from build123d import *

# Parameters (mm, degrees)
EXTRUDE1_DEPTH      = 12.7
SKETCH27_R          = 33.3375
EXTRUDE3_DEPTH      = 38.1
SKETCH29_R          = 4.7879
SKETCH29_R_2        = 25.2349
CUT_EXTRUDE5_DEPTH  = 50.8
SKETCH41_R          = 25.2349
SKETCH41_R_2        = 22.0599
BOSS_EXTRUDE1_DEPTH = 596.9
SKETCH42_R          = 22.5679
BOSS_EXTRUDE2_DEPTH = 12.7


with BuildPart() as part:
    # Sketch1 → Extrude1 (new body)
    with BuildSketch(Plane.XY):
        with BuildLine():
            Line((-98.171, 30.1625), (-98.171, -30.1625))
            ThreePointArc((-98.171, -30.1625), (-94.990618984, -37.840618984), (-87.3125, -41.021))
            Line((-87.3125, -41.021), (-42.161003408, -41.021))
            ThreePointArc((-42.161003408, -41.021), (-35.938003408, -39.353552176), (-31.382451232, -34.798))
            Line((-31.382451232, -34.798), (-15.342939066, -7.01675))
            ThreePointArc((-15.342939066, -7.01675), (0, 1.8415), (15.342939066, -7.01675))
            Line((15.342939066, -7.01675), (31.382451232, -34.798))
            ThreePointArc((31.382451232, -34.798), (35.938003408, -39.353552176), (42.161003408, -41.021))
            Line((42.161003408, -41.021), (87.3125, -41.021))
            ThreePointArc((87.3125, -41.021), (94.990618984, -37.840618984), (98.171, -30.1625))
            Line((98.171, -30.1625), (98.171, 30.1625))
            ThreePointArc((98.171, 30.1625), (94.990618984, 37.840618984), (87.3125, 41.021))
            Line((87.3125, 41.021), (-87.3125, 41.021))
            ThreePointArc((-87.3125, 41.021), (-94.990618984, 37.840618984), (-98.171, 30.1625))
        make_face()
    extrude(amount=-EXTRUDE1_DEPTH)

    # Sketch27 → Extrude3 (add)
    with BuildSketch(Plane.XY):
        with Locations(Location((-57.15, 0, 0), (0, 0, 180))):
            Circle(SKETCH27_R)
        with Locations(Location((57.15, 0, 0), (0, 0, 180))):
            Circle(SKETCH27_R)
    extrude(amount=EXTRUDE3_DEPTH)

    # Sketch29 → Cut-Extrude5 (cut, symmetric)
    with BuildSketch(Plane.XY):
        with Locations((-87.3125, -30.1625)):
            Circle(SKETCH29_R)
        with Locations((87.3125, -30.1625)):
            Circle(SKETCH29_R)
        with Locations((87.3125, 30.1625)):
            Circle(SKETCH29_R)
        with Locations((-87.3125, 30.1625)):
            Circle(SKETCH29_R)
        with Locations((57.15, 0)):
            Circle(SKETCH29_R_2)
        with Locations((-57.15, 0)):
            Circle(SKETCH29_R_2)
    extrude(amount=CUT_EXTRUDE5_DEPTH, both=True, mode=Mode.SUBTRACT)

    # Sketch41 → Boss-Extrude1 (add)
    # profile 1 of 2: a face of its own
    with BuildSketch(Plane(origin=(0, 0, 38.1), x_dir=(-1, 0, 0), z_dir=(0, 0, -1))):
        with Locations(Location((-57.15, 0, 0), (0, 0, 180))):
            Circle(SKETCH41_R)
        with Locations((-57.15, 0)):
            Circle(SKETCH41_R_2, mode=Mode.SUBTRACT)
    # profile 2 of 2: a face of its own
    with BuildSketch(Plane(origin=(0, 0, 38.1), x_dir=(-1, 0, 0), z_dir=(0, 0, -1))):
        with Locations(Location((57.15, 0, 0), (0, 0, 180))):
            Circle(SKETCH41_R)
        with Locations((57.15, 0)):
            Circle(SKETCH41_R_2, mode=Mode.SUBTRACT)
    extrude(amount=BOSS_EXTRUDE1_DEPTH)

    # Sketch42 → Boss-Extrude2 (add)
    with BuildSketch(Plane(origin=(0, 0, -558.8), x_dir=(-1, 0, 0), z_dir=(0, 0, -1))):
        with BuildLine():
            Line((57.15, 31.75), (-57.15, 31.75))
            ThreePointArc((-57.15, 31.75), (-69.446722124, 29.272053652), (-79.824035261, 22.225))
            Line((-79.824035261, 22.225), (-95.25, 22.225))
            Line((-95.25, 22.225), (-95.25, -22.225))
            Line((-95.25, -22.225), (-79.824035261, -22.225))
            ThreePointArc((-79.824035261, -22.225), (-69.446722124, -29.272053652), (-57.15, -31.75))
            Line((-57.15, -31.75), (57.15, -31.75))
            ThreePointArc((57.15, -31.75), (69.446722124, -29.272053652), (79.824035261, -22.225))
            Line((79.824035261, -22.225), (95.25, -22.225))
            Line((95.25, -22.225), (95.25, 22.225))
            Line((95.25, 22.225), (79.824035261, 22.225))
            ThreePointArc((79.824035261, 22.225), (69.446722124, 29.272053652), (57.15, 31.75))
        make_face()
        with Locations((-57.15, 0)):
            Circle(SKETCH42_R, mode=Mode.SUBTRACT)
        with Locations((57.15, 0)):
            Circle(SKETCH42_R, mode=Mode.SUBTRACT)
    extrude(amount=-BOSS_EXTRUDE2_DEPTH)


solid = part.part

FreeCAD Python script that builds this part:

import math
import FreeCAD as App
import Part
import Sketcher
from FreeCAD import Vector
Q = App.Units.Quantity

doc = App.newDocument("Part")
body = doc.addObject("PartDesign::Body", "Body")

sketch1 = doc.addObject("Sketcher::SketchObject", "Sketch")
body.addObject(sketch1)
sketch1.AttachmentSupport = (doc.XY_Plane, [""])
sketch1.MapMode = "FlatFace"
sketch1.addGeometry([
    Part.LineSegment(Vector(-98.171, 30.1625, 0), Vector(-98.171, -30.1625, 0)),
    Part.ArcOfCircle(Part.Circle(Vector(-87.3125, -30.1625, 0), Vector(0, 0, 1), 10.8585), math.radians(180), math.radians(270)),
    Part.LineSegment(Vector(-87.3125, -41.021, 0), Vector(-42.161003, -41.021, 0)),
    Part.ArcOfCircle(Part.Circle(Vector(-42.161003, -28.575, 0), Vector(0, 0, 1), 12.446), math.radians(-90), math.radians(-30)),
    Part.LineSegment(Vector(-31.382451, -34.798, 0), Vector(-15.342939, -7.01675, 0)),
    Part.ArcOfCircle(Part.Circle(Vector(0, -15.875, 0), Vector(0, 0, 1), 17.7165), math.radians(30), math.radians(150)),
    Part.LineSegment(Vector(15.342939, -7.01675, 0), Vector(31.382451, -34.798, 0)),
    Part.ArcOfCircle(Part.Circle(Vector(42.161003, -28.575, 0), Vector(0, 0, 1), 12.446), math.radians(-150), math.radians(-90)),
    Part.LineSegment(Vector(42.161003, -41.021, 0), Vector(87.3125, -41.021, 0)),
    Part.ArcOfCircle(Part.Circle(Vector(87.3125, -30.1625, 0), Vector(0, 0, 1), 10.8585), math.radians(-90), math.radians(0)),
    Part.LineSegment(Vector(98.171, -30.1625, 0), Vector(98.171, 30.1625, 0)),
    Part.ArcOfCircle(Part.Circle(Vector(87.3125, 30.1625, 0), Vector(0, 0, 1), 10.8585), math.radians(0), math.radians(90)),
    Part.LineSegment(Vector(87.3125, 41.021, 0), Vector(-87.3125, 41.021, 0)),
    Part.ArcOfCircle(Part.Circle(Vector(-87.3125, 30.1625, 0), Vector(0, 0, 1), 10.8585), math.radians(90), math.radians(180)),
], False)
sketch1.addConstraint([
    Sketcher.Constraint("Tangent", 0, 2, 1, 1),
    Sketcher.Constraint("Tangent", 1, 2, 2, 1),
    Sketcher.Constraint("Tangent", 2, 2, 3, 1),
    Sketcher.Constraint("Tangent", 3, 2, 4, 1),
    Sketcher.Constraint("Tangent", 4, 2, 5, 2),
    Sketcher.Constraint("Tangent", 5, 1, 6, 1),
    Sketcher.Constraint("Tangent", 6, 2, 7, 1),
    Sketcher.Constraint("Tangent", 7, 2, 8, 1),
    Sketcher.Constraint("Tangent", 8, 2, 9, 1),
    Sketcher.Constraint("Tangent", 9, 2, 10, 1),
    Sketcher.Constraint("Tangent", 10, 2, 11, 1),
    Sketcher.Constraint("Tangent", 11, 2, 12, 1),
    Sketcher.Constraint("Tangent", 12, 2, 13, 1),
    Sketcher.Constraint("Tangent", 13, 2, 0, 1),
    Sketcher.Constraint("Vertical", 0),
    Sketcher.Constraint("Horizontal", 2),
    Sketcher.Constraint("Horizontal", 8),
    Sketcher.Constraint("Vertical", 10),
    Sketcher.Constraint("Horizontal", 12),
    Sketcher.Constraint("Equal", 3, 7),
    Sketcher.Constraint("Equal", 1, 9),
    Sketcher.Constraint("Equal", 9, 11),
    Sketcher.Constraint("Equal", 11, 13),
    Sketcher.Constraint("Symmetric", 1, 3, 11, 3, -1, 1),
    Sketcher.Constraint("Symmetric", 3, 3, 7, 3, -2),
    Sketcher.Constraint("PointOnObject", 5, 3, -2),
    Sketcher.Constraint("Radius", 3, Q("0.49 in")),
    Sketcher.Constraint("Angle", 4, Q("60 deg")),
    Sketcher.Constraint("Radius", 1, Q("0.4275 in")),
    Sketcher.Constraint("Radius", 5, Q("0.6975 in")),
    Sketcher.Constraint("DistanceY", 3, 3, 5, 3, Q("0.5 in")),
    Sketcher.Constraint("DistanceX", 12, 2, 12, 1, Q("6.875 in")),
    Sketcher.Constraint("DistanceY", 0, 2, 0, 1, Q("2.375 in")),
])
pad1 = doc.addObject("PartDesign::Pad", "Pad")
body.addObject(pad1)
pad1.Profile = sketch1
pad1.Length = Q("0.5 in")
pad1.Reversed = True

sketch2 = doc.addObject("Sketcher::SketchObject", "Sketch001")
body.addObject(sketch2)
sketch2.AttachmentSupport = (doc.XY_Plane, [""])
sketch2.MapMode = "FlatFace"
sketch2.addGeometry([
    Part.Circle(Vector(-57.15, 0, 0), Vector(0, 0, 1), 33.3375),
    Part.Circle(Vector(57.15, 0, 0), Vector(0, 0, 1), 33.3375),
], False)
sketch2.addConstraint([
    Sketcher.Constraint("Equal", 0, 1),
    Sketcher.Constraint("Symmetric", 0, 3, 1, 3, -1, 1),
    Sketcher.Constraint("PointOnObject", 0, 3, -1),
    Sketcher.Constraint("Diameter", 0, Q("2.625 in")),
    Sketcher.Constraint("DistanceX", 0, 3, 1, 3, Q("4.5 in")),
])
pad2 = doc.addObject("PartDesign::Pad", "Pad001")
body.addObject(pad2)
pad2.Profile = sketch2
pad2.Length = Q("1.5 in")

sketch3 = doc.addObject("Sketcher::SketchObject", "Sketch002")
body.addObject(sketch3)
sketch3.AttachmentSupport = (doc.XY_Plane, [""])
sketch3.MapMode = "FlatFace"
sketch3.addGeometry([
    Part.Circle(Vector(-87.3125, -30.1625, 0), Vector(0, 0, 1), 4.7879),
    Part.Circle(Vector(87.3125, -30.1625, 0), Vector(0, 0, 1), 4.7879),
    Part.Circle(Vector(87.3125, 30.1625, 0), Vector(0, 0, 1), 4.7879),
    Part.Circle(Vector(-87.3125, 30.1625, 0), Vector(0, 0, 1), 4.7879),
    Part.Circle(Vector(57.15, 0, 0), Vector(0, 0, 1), 25.2349),
    Part.Circle(Vector(-57.15, 0, 0), Vector(0, 0, 1), 25.2349),
], False)
sketch3.addConstraint([
    Sketcher.Constraint("Equal", 0, 1),
    Sketcher.Constraint("Equal", 1, 2),
    Sketcher.Constraint("Equal", 2, 3),
    Sketcher.Constraint("Equal", 4, 5),
    Sketcher.Constraint("Symmetric", 0, 3, 2, 3, -1, 1),
    Sketcher.Constraint("Symmetric", 1, 3, 3, 3, -1, 1),
    Sketcher.Constraint("Symmetric", 4, 3, 5, 3, -1, 1),
    Sketcher.Constraint("Symmetric", 0, 3, 1, 3, -2),
    Sketcher.Constraint("PointOnObject", 4, 3, -1),
    Sketcher.Constraint("Diameter", 0, Q("0.377 in")),
    Sketcher.Constraint("Diameter", 4, Q("1.987 in")),
    Sketcher.Constraint("DistanceX", 5, 3, 4, 3, Q("4.5 in")),
    Sketcher.Constraint("DistanceX", 0, 3, -1, 1, Q("3.4375 in")),
    Sketcher.Constraint("DistanceY", 0, 3, -1, 1, Q("1.1875 in")),
])
pocket1 = doc.addObject("PartDesign::Pocket", "Pocket")
body.addObject(pocket1)
pocket1.Profile = sketch3
pocket1.Length = Q("4 in")
pocket1.Midplane = True

sketch4 = doc.addObject("Sketcher::SketchObject", "Sketch003")
body.addObject(sketch4)
sketch4.AttachmentSupport = (doc.XY_Plane, [""])
sketch4.MapMode = "FlatFace"
sketch4.AttachmentOffset = App.Placement(Vector(0, 0, 1.5 * 25.4), App.Rotation())
sketch4.addGeometry([
    Part.Circle(Vector(57.15, 0, 0), Vector(0, 0, 1), 25.2349),
    Part.Circle(Vector(57.15, 0, 0), Vector(0, 0, 1), 22.0599),
    Part.Circle(Vector(-57.15, 0, 0), Vector(0, 0, 1), 25.2349),
    Part.Circle(Vector(-57.15, 0, 0), Vector(0, 0, 1), 22.0599),
], False)
sketch4.addConstraint([
    Sketcher.Constraint("Coincident", 1, 3, 0, 3),
    Sketcher.Constraint("Coincident", 3, 3, 2, 3),
    Sketcher.Constraint("Equal", 0, 2),
    Sketcher.Constraint("Equal", 1, 3),
    Sketcher.Constraint("Symmetric", 0, 3, 2, 3, -1, 1),
    Sketcher.Constraint("PointOnObject", 0, 3, -1),
    Sketcher.Constraint("Diameter", 0, Q("1.987 in")),
    Sketcher.Constraint("Diameter", 1, Q("1.737 in")),
    Sketcher.Constraint("DistanceX", 2, 3, 0, 3, Q("4.5 in")),
])
pad3 = doc.addObject("PartDesign::Pad", "Pad002")
body.addObject(pad3)
pad3.Profile = sketch4
pad3.Length = Q("23.5 in")
pad3.Reversed = True

sketch5 = doc.addObject("Sketcher::SketchObject", "Sketch004")
body.addObject(sketch5)
sketch5.AttachmentSupport = (doc.XY_Plane, [""])
sketch5.MapMode = "FlatFace"
sketch5.AttachmentOffset = App.Placement(Vector(0, 0, -22 * 25.4), App.Rotation())
sketch5.addGeometry([
    Part.LineSegment(Vector(-57.15, 31.75, 0), Vector(57.15, 31.75, 0)),
    Part.ArcOfCircle(Part.Circle(Vector(57.15, 0, 0), Vector(0, 0, 1), 31.75), math.radians(44.427004), math.radians(90)),
    Part.LineSegment(Vector(79.824035, 22.225, 0), Vector(95.25, 22.225, 0)),
    Part.LineSegment(Vector(95.25, 22.225, 0), Vector(95.25, -22.225, 0)),
    Part.LineSegment(Vector(95.25, -22.225, 0), Vector(79.824035, -22.225, 0)),
    Part.ArcOfCircle(Part.Circle(Vector(57.15, 0, 0), Vector(0, 0, 1), 31.75), math.radians(-90), math.radians(-44.427004)),
    Part.LineSegment(Vector(57.15, -31.75, 0), Vector(-57.15, -31.75, 0)),
    Part.ArcOfCircle(Part.Circle(Vector(-57.15, 0, 0), Vector(0, 0, 1), 31.75), math.radians(-135.572996), math.radians(-90)),
    Part.LineSegment(Vector(-79.824035, -22.225, 0), Vector(-95.25, -22.225, 0)),
    Part.LineSegment(Vector(-95.25, -22.225, 0), Vector(-95.25, 22.225, 0)),
    Part.LineSegment(Vector(-95.25, 22.225, 0), Vector(-79.824035, 22.225, 0)),
    Part.ArcOfCircle(Part.Circle(Vector(-57.15, 0, 0), Vector(0, 0, 1), 31.75), math.radians(90), math.radians(135.572996)),
    Part.Circle(Vector(57.15, 0, 0), Vector(0, 0, 1), 22.5679),
    Part.Circle(Vector(-57.15, 0, 0), Vector(0, 0, 1), 22.5679),
], False)
sketch5.addConstraint([
    Sketcher.Constraint("Tangent", 0, 2, 1, 2),
    Sketcher.Constraint("Coincident", 1, 1, 2, 1),
    Sketcher.Constraint("Coincident", 2, 2, 3, 1),
    Sketcher.Constraint("Coincident", 3, 2, 4, 1),
    Sketcher.Constraint("Coincident", 4, 2, 5, 2),
    Sketcher.Constraint("Tangent", 5, 1, 6, 1),
    Sketcher.Constraint("Tangent", 6, 2, 7, 2),
    Sketcher.Constraint("Coincident", 7, 1, 8, 1),
    Sketcher.Constraint("Coincident", 8, 2, 9, 1),
    Sketcher.Constraint("Coincident", 9, 2, 10, 1),
    Sketcher.Constraint("Coincident", 10, 2, 11, 2),
    Sketcher.Constraint("Tangent", 11, 1, 0, 1),
    Sketcher.Constraint("Horizontal", 0),
    Sketcher.Constraint("Horizontal", 2),
    Sketcher.Constraint("Vertical", 3),
    Sketcher.Constraint("Horizontal", 4),
    Sketcher.Constraint("Horizontal", 6),
    Sketcher.Constraint("Horizontal", 8),
    Sketcher.Constraint("Vertical", 9),
    Sketcher.Constraint("Horizontal", 10),
    Sketcher.Constraint("Coincident", 5, 3, 1, 3),
    Sketcher.Constraint("Coincident", 11, 3, 7, 3),
    Sketcher.Constraint("Coincident", 12, 3, 1, 3),
    Sketcher.Constraint("Coincident", 13, 3, 7, 3),
    Sketcher.Constraint("Equal", 1, 5),
    Sketcher.Constraint("Equal", 5, 7),
    Sketcher.Constraint("Equal", 12, 13),
    Sketcher.Constraint("Symmetric", 1, 3, 7, 3, -1, 1),
    Sketcher.Constraint("Symmetric", 2, 2, 8, 2, -1, 1),
    Sketcher.Constraint("Horizontal", 4, 2, 7, 1),
    Sketcher.Constraint("Horizontal", 2, 2, 9, 2),
    Sketcher.Constraint("Radius", 1, Q("1.25 in")),
    Sketcher.Constraint("Diameter", 12, Q("1.777 in")),
    Sketcher.Constraint("DistanceX", 0, 1, 0, 2, Q("4.5 in")),
    Sketcher.Constraint("DistanceY", 3, 2, 3, 1, Q("1.75 in")),
    Sketcher.Constraint("DistanceX", 0, 2, 2, 2, Q("1.5 in")),
])
pad4 = doc.addObject("PartDesign::Pad", "Pad003")
body.addObject(pad4)
pad4.Profile = sketch5
pad4.Length = Q("0.5 in")

doc.recompute()
